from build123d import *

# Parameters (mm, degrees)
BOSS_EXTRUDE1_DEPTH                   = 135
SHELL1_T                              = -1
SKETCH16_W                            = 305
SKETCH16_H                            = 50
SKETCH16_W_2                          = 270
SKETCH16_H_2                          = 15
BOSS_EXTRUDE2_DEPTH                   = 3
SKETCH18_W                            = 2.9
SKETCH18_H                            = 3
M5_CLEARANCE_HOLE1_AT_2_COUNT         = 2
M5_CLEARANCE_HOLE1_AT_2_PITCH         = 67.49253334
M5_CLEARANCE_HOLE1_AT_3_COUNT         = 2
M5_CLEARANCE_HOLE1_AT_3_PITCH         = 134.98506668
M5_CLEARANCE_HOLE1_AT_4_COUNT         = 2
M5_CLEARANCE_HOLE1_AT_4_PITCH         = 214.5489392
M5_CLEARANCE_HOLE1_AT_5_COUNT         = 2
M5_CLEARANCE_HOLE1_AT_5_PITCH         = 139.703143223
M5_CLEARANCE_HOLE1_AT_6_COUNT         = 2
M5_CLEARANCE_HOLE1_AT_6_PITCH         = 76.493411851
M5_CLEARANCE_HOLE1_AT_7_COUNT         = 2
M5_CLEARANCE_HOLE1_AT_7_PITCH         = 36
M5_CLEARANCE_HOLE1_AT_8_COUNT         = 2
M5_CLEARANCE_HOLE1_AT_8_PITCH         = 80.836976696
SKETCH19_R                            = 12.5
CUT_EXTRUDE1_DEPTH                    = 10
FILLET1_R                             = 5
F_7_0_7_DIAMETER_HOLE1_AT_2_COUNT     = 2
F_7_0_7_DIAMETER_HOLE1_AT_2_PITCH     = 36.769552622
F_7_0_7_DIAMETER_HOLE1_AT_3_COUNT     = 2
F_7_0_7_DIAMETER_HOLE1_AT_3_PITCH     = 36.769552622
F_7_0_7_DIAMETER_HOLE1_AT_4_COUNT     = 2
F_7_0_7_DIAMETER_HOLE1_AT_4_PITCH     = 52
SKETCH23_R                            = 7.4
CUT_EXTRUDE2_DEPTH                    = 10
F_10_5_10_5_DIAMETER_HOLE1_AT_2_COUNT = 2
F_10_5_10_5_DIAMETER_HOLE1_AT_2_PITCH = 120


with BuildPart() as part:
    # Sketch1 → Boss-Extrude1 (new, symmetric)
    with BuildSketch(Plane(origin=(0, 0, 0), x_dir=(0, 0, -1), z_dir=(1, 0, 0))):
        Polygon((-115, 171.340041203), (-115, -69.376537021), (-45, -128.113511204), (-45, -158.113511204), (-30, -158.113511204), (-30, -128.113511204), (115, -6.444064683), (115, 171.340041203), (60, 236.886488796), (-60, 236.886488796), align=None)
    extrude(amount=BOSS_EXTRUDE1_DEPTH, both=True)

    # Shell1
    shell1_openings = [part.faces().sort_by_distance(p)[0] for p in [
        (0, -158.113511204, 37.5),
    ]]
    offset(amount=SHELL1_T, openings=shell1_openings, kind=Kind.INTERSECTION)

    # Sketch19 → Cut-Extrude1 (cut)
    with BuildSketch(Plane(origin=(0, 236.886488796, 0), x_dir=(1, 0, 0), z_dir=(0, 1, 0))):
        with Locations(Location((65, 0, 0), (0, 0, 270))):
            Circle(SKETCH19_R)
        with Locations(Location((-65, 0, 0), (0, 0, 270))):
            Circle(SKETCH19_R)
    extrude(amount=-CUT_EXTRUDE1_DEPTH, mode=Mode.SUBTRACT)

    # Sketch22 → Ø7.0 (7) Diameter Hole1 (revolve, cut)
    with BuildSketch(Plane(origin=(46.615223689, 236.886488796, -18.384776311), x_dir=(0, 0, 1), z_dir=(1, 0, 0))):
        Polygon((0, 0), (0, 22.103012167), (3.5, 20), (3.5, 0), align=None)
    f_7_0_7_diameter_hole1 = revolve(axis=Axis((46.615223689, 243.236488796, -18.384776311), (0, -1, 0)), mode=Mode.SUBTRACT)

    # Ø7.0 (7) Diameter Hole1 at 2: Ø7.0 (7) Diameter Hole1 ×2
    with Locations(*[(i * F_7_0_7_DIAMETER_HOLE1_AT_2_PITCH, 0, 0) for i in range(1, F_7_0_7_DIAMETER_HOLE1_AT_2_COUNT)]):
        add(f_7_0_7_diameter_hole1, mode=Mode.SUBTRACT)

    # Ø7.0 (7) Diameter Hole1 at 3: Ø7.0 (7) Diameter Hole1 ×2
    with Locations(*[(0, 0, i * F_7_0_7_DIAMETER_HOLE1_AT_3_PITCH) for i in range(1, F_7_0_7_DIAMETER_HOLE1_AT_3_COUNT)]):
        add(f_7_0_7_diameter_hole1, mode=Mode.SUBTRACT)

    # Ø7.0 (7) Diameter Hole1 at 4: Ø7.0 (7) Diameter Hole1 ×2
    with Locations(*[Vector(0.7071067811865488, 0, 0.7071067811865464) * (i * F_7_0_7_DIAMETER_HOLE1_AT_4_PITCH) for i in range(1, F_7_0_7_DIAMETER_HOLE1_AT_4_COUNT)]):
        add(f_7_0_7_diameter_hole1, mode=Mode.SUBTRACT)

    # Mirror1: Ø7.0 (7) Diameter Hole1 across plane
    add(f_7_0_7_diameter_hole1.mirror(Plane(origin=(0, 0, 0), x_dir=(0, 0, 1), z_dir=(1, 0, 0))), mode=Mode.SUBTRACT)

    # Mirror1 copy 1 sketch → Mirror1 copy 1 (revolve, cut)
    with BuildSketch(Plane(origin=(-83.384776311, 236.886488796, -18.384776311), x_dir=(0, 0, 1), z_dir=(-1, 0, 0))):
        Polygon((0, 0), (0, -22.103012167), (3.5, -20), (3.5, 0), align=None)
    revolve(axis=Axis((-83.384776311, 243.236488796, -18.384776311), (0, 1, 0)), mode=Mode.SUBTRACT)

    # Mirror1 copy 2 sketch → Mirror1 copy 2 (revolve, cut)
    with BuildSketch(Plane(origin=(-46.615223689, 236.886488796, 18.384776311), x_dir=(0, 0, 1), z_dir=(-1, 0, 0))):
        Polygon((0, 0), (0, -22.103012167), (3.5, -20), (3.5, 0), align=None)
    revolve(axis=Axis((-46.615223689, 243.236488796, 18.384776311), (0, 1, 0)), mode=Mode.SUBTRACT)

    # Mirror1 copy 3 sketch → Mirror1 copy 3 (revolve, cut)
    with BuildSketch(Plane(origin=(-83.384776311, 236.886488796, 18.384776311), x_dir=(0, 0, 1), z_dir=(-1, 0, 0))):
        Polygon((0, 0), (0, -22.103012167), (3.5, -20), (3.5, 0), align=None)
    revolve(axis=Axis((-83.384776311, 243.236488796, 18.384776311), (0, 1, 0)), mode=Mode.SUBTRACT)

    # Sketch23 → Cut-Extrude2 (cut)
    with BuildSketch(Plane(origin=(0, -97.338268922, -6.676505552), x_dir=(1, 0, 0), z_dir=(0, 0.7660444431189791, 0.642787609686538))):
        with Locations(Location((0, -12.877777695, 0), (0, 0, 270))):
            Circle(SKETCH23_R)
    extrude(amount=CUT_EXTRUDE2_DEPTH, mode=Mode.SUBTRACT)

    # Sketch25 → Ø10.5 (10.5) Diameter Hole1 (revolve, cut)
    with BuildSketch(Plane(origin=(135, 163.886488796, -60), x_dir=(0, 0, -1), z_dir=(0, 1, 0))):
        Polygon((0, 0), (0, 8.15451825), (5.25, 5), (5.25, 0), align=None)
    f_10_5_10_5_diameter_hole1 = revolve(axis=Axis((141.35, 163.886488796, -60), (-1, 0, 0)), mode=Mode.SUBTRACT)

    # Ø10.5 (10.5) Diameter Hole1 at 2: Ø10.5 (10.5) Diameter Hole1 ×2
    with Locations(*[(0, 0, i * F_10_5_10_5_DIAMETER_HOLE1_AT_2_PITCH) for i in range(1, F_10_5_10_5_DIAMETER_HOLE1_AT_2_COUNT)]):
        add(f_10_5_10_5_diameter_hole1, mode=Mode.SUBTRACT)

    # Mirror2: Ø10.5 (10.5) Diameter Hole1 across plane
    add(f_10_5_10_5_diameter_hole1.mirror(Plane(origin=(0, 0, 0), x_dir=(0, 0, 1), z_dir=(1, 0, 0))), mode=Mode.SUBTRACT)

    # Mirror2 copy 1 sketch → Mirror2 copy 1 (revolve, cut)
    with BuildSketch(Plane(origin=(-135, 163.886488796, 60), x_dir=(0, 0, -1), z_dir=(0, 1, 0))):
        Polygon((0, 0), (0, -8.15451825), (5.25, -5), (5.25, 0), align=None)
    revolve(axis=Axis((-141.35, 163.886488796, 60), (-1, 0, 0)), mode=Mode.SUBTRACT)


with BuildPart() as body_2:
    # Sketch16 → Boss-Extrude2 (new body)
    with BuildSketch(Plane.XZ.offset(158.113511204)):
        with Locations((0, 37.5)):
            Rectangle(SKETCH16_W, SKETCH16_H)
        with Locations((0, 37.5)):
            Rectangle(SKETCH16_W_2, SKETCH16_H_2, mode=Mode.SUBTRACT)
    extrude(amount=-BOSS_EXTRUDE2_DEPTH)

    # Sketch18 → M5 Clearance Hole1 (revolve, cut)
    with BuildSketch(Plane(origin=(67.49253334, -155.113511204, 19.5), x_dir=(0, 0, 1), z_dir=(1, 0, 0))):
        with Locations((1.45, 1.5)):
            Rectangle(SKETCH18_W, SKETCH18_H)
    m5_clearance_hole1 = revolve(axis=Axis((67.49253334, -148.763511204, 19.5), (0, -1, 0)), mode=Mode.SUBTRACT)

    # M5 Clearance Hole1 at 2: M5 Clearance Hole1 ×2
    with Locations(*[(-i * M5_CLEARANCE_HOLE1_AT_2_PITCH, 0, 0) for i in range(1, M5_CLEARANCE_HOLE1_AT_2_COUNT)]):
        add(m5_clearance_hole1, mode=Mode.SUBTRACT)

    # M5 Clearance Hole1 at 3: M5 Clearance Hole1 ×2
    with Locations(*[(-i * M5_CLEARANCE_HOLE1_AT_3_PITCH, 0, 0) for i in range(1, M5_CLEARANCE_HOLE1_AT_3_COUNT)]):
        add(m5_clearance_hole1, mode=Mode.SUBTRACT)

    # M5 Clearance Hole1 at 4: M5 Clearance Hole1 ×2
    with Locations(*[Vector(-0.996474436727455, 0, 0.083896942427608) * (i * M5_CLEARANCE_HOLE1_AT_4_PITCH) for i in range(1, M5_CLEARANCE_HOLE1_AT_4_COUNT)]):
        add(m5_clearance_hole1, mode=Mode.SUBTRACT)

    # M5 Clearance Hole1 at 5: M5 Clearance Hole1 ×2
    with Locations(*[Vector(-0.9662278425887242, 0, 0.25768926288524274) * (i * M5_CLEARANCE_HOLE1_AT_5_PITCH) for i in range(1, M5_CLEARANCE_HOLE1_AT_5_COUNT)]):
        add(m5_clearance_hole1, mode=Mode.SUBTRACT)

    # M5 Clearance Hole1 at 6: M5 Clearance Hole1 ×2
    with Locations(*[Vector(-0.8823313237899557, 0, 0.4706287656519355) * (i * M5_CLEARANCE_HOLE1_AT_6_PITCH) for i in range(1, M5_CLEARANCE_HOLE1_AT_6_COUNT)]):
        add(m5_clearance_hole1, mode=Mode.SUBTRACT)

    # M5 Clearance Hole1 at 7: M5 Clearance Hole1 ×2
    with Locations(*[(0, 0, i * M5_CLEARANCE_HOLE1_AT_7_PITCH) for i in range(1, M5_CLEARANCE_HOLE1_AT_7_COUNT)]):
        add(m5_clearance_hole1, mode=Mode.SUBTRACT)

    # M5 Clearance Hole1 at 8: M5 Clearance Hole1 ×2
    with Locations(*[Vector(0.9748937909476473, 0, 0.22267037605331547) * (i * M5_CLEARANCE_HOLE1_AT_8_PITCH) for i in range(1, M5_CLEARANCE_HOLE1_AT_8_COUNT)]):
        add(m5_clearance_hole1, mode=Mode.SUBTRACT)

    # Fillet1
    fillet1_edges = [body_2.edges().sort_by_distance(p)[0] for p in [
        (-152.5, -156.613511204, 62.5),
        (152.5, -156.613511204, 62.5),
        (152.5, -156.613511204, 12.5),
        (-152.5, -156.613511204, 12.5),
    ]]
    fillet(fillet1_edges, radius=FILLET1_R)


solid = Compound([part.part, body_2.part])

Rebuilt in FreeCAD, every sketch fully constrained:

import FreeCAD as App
import Part
import Sketcher

V = App.Vector
Q = App.Units.Quantity


def edges_at(feature, points):
    """Names of the edges that pass closest to the given points."""
    edges = feature.Shape.Edges
    near = lambda p: min(range(len(edges)), key=lambda i: edges[i].distToShape(Part.Vertex(*p))[0])
    return sorted({f"Edge{near(p) + 1}" for p in points})


def faces_at(feature, points):
    """Names of the faces that lie closest to the given points."""
    faces = feature.Shape.Faces
    near = lambda p: min(range(len(faces)), key=lambda i: faces[i].distToShape(Part.Vertex(*p))[0])
    return sorted({f"Face{near(p) + 1}" for p in points})


def add_polygon(sketch, points):
    """Adds a closed chain of lines whose ends are joined by coincident constraints."""
    first, n = sketch.GeometryCount, len(points)
    for a, b in zip(points, points[1:] + points[:1]):
        sketch.addGeometry(Part.LineSegment(App.Vector(*a, 0), App.Vector(*b, 0)), False)
    for i in range(n):
        sketch.addConstraint(Sketcher.Constraint("Coincident", first + i, 2, first + (i + 1) % n, 1))

doc = App.newDocument("Part")
params = doc.addObject("Spreadsheet::Sheet", "Params")
for row, (alias, value) in enumerate([
    ("sketch1_width", "30 mm"),
    ("sketch1_height", "15 mm"),
    ("sketch1_height2", "120 mm"),
    ("pad1_length", "270 mm"),
    ("thickness_wall", "1 mm"),
    ("sketch2_diameter", "25 mm"),
    ("pocket1_length", "10 mm"),
    ("sketch3_width", "20 mm"),
    ("sketch3_height", "3.5 mm"),
    ("groove_angle", "360 deg"),
    ("linearpattern_pitch", "36.769553 mm"),
    ("linearpattern2_pitch", "36.769553 mm"),
    ("linearpattern3_pitch", "52 mm"),
    ("sketch4_width", "20 mm"),
    ("sketch4_height", "3.5 mm"),
    ("groove2_angle", "360 deg"),
    ("sketch5_width", "20 mm"),
    ("sketch5_height", "3.5 mm"),
    ("groove3_angle", "360 deg"),
    ("sketch6_width", "20 mm"),
    ("sketch6_height", "3.5 mm"),
    ("groove4_angle", "360 deg"),
    ("sketch7_diameter", "14.8 mm"),
    ("pocket2_length", "10 mm"),
    ("sketch8_width", "5 mm"),
    ("sketch8_height", "5.25 mm"),
    ("groove5_angle", "360 deg"),
    ("linearpattern4_pitch", "120 mm"),
    ("sketch9_width", "5 mm"),
    ("sketch9_height", "5.25 mm"),
    ("groove6_angle", "360 deg"),
    ("sketch10_width", "305 mm"),
    ("sketch10_width2", "270 mm"),
    ("sketch10_height", "50 mm"),
    ("sketch10_height2", "15 mm"),
    ("pad2_length", "3 mm"),
    ("sketch11_width", "3 mm"),
    ("sketch11_height", "2.9 mm"),
    ("groove7_angle", "360 deg"),
    ("linearpattern5_pitch", "67.492533 mm"),
    ("linearpattern6_pitch", "134.985067 mm"),
    ("linearpattern7_pitch", "214.548939 mm"),
    ("linearpattern8_pitch", "139.703143 mm"),
    ("linearpattern9_pitch", "76.493412 mm"),
    ("linearpattern10_pitch", "36 mm"),
    ("linearpattern11_pitch", "80.836977 mm"),
    ("fillet_radius", "5 mm"),
], start=1):
    params.set(f"A{row}", alias)
    params.set(f"B{row}", "=" + value)
    params.setAlias(f"B{row}", alias)

body = doc.addObject("PartDesign::Body", "Body")

# Sketch on YZ plane
sketch1 = body.newObject("Sketcher::SketchObject", "Sketch")
sketch1.AttachmentSupport = (doc.getObject("YZ_Plane"), [""])
sketch1.MapMode = "FlatFace"
add_polygon(sketch1, [(171.340041, 115), (-69.376537, 115), (-128.113511, 45), (-158.113511, 45), (-158.113511, 30), (-128.113511, 30), (-6.444065, -115), (171.340041, -115), (236.886489, -60), (236.886489, 60)])  # lines 0-9
sketch1.addConstraint(Sketcher.Constraint("Horizontal", 0))
sketch1.addConstraint(Sketcher.Constraint("Horizontal", 2))
sketch1.addConstraint(Sketcher.Constraint("Vertical", 3))
sketch1.addConstraint(Sketcher.Constraint("Horizontal", 4))
sketch1.addConstraint(Sketcher.Constraint("Horizontal", 6))
sketch1.addConstraint(Sketcher.Constraint("Vertical", 8))
sketch1.addConstraint(Sketcher.Constraint("Symmetric", 6, 2, 9, 2, -1))
sketch1.addConstraint(Sketcher.Constraint("Perpendicular", 5, 7))
sketch1.addConstraint(Sketcher.Constraint("Perpendicular", 1, 9))
sketch1.addConstraint(Sketcher.Constraint("Vertical", 1, 2, 4, 2))
sketch1.addConstraint(Sketcher.Constraint("Equal", 7, 9))
sketch1.addConstraint(Sketcher.Constraint("DistanceX", 2, 2, 2, 1, Q("30 mm")))
sketch1.addConstraint(Sketcher.Constraint("DistanceY", 3, 2, 3, 1, Q("15 mm")))
sketch1.addConstraint(Sketcher.Constraint("DistanceY", 8, 1, 8, 2, Q("120 mm")))
sketch1.addConstraint(Sketcher.Constraint("Angle", 1, Q("-130 deg")))
sketch1.addConstraint(Sketcher.Constraint("DistanceY", -1, 1, 0, 2, Q("115 mm")))
sketch1.addConstraint(Sketcher.Constraint("DistanceY", -1, 1, 1, 2, Q("45 mm")))
sketch1.addConstraint(Sketcher.Constraint("DistanceX", 4, 2, 7, 2, Q("365 mm")))
sketch1.addConstraint(Sketcher.Constraint("DistanceX", 1, 2, -1, 1, Q("128.113511 mm")))
sketch1.setExpression("Constraints[21]", "Params.sketch1_width")
sketch1.setExpression("Constraints[22]", "Params.sketch1_height")
sketch1.setExpression("Constraints[23]", "Params.sketch1_height2")
pad1 = body.newObject("PartDesign::Pad", "Pad")
pad1.Profile = sketch1
pad1.setExpression("Length", "Params.pad1_length")
pad1.Midplane = True
doc.recompute()

thickness = body.newObject("PartDesign::Thickness", "Thickness")
thickness.Base = (pad1, faces_at(pad1, [(0, -158.114, 37.5)]))
thickness.setExpression("Value", "Params.thickness_wall")
thickness.Reversed = True
thickness.Join = "Intersection"

# Sketch on XZ plane
sketch2 = body.newObject("Sketcher::SketchObject", "Sketch001")
sketch2.AttachmentSupport = (doc.getObject("XZ_Plane"), [""])
sketch2.MapMode = "FlatFace"
sketch2.AttachmentOffset = App.Placement(V(0, 0, -236.886489), App.Rotation())
sketch2.addGeometry(Part.Circle(V(65, 0, 0), V(0, 0, 1), 12.5), False)
sketch2.addGeometry(Part.Circle(V(-65, 0, 0), V(0, 0, 1), 12.5), False)
sketch2.addConstraint(Sketcher.Constraint("Equal", 0, 1))
sketch2.addConstraint(Sketcher.Constraint("Symmetric", 0, 3, 1, 3, -1, 1))
sketch2.addConstraint(Sketcher.Constraint("PointOnObject", 0, 3, -1))
sketch2.addConstraint(Sketcher.Constraint("Diameter", 0, Q("25 mm")))
sketch2.addConstraint(Sketcher.Constraint("DistanceX", -1, 1, 0, 3, Q("65 mm")))
sketch2.setExpression("Constraints[3]", "Params.sketch2_diameter")
pocket1 = body.newObject("PartDesign::Pocket", "Pocket")
pocket1.Profile = sketch2
pocket1.setExpression("Length", "Params.pocket1_length")
pocket1.Reversed = True

# Sketch on YZ plane
sketch3 = body.newObject("Sketcher::SketchObject", "Sketch002")
sketch3.AttachmentSupport = (doc.getObject("YZ_Plane"), [""])
sketch3.MapMode = "FlatFace"
sketch3.AttachmentOffset = App.Placement(V(0, 0, 46.615224), App.Rotation())
add_polygon(sketch3, [(214.783477, -18.384776), (236.886489, -18.384776), (236.886489, -14.884776), (216.886489, -14.884776)])  # lines 0-3
sketch3.addGeometry(Part.LineSegment(V(236.886489, -18.384776, 0), V(214.783477, -18.384776, 0)), True)  # axis
sketch3.addConstraint(Sketcher.Constraint("Horizontal", 0))
sketch3.addConstraint(Sketcher.Constraint("Vertical", 1))
sketch3.addConstraint(Sketcher.Constraint("Horizontal", 2))
sketch3.addConstraint(Sketcher.Constraint("Horizontal", 4))
sketch3.addConstraint(Sketcher.Constraint("Coincident", 4, 1, 0, 2))
sketch3.addConstraint(Sketcher.Constraint("Equal", 0, 4))
sketch3.addConstraint(Sketcher.Constraint("DistanceX", 2, 2, 2, 1, Q("20 mm")))
sketch3.addConstraint(Sketcher.Constraint("Angle", 3, Q("-121 deg")))
sketch3.addConstraint(Sketcher.Constraint("DistanceY", 1, 1, 1, 2, Q("3.5 mm")))
sketch3.addConstraint(Sketcher.Constraint("DistanceX", -1, 1, 0, 2, Q("236.886489 mm")))
sketch3.addConstraint(Sketcher.Constraint("DistanceY", 0, 2, -1, 1, Q("18.384776 mm")))
sketch3.setExpression("Constraints[10]", "Params.sketch3_width")
sketch3.setExpression("Constraints[12]", "Params.sketch3_height")
groove = body.newObject("PartDesign::Groove", "Groove")
groove.Profile = sketch3
groove.ReferenceAxis = (sketch3, ["Axis0"])
groove.setExpression("Angle", "Params.groove_angle")
doc.recompute()

linearpattern = body.newObject("PartDesign::LinearPattern", "LinearPattern")
linearpattern.Originals = [groove]
linearpattern.Direction = (doc.getObject("X_Axis"), [""])
linearpattern.Mode = "offset"
linearpattern.setExpression("Offset", "Params.linearpattern_pitch")
linearpattern.Occurrences = 2
body.Tip = linearpattern
doc.recompute()

linearpattern2 = body.newObject("PartDesign::LinearPattern", "LinearPattern001")
linearpattern2.Originals = [groove]
linearpattern2.Direction = (doc.getObject("Z_Axis"), [""])
linearpattern2.Mode = "offset"
linearpattern2.setExpression("Offset", "Params.linearpattern2_pitch")
linearpattern2.Occurrences = 2
body.Tip = linearpattern2
doc.recompute()

datumline = body.newObject("PartDesign::Line", "DatumLine")
datumline.Placement = App.Placement(V(0, 0, 0), App.Rotation(V(0, 0, 1), V(0.707106781, 0, 0.707106781)))
linearpattern3 = body.newObject("PartDesign::LinearPattern", "LinearPattern002")
linearpattern3.Originals = [groove]
linearpattern3.Direction = (datumline, [""])
linearpattern3.Mode = "offset"
linearpattern3.setExpression("Offset", "Params.linearpattern3_pitch")
linearpattern3.Occurrences = 2
body.Tip = linearpattern3
doc.recompute()

mirrored = body.newObject("PartDesign::Mirrored", "Mirrored")
mirrored.Originals = [groove]
mirrored.MirrorPlane = (doc.getObject("YZ_Plane"), [""])
body.Tip = mirrored

# Sketch on YZ plane
sketch4 = body.newObject("Sketcher::SketchObject", "Sketch003")
sketch4.AttachmentSupport = (doc.getObject("YZ_Plane"), [""])
sketch4.MapMode = "FlatFace"
sketch4.AttachmentOffset = App.Placement(V(0, 0, -83.384776), App.Rotation())
add_polygon(sketch4, [(236.886489, -18.384776), (214.783477, -18.384776), (216.886489, -14.884776), (236.886489, -14.884776)])  # lines 0-3
sketch4.addGeometry(Part.LineSegment(V(214.783477, -18.384776, 0), V(236.886489, -18.384776, 0)), True)  # axis
sketch4.addConstraint(Sketcher.Constraint("Horizontal", 0))
sketch4.addConstraint(Sketcher.Constraint("Horizontal", 2))
sketch4.addConstraint(Sketcher.Constraint("Vertical", 3))
sketch4.addConstraint(Sketcher.Constraint("Horizontal", 4))
sketch4.addConstraint(Sketcher.Constraint("Coincident", 4, 1, 0, 2))
sketch4.addConstraint(Sketcher.Constraint("Vertical", 2, 2, 4, 2))
sketch4.addConstraint(Sketcher.Constraint("DistanceX", 2, 1, 2, 2, Q("20 mm")))
sketch4.addConstraint(Sketcher.Constraint("Angle", 1, Q("59 deg")))
sketch4.addConstraint(Sketcher.Constraint("DistanceY", 3, 2, 3, 1, Q("3.5 mm")))
sketch4.addConstraint(Sketcher.Constraint("DistanceX", -1, 1, 1, 2, Q("216.886489 mm")))
sketch4.addConstraint(Sketcher.Constraint("DistanceY", 0, 2, -1, 1, Q("18.384776 mm")))
sketch4.setExpression("Constraints[10]", "Params.sketch4_width")
sketch4.setExpression("Constraints[12]", "Params.sketch4_height")
groove2 = body.newObject("PartDesign::Groove", "Groove001")
groove2.Profile = sketch4
groove2.ReferenceAxis = (sketch4, ["Axis0"])
groove2.setExpression("Angle", "Params.groove2_angle")

# Sketch on YZ plane
sketch5 = body.newObject("Sketcher::SketchObject", "Sketch004")
sketch5.AttachmentSupport = (doc.getObject("YZ_Plane"), [""])
sketch5.MapMode = "FlatFace"
sketch5.AttachmentOffset = App.Placement(V(0, 0, -46.615224), App.Rotation())
add_polygon(sketch5, [(236.886489, 18.384776), (214.783477, 18.384776), (216.886489, 21.884776), (236.886489, 21.884776)])  # lines 0-3
sketch5.addGeometry(Part.LineSegment(V(214.783477, 18.384776, 0), V(236.886489, 18.384776, 0)), True)  # axis
sketch5.addConstraint(Sketcher.Constraint("Horizontal", 0))
sketch5.addConstraint(Sketcher.Constraint("Horizontal", 2))
sketch5.addConstraint(Sketcher.Constraint("Vertical", 3))
sketch5.addConstraint(Sketcher.Constraint("Horizontal", 4))
sketch5.addConstraint(Sketcher.Constraint("Coincident", 4, 1, 0, 2))
sketch5.addConstraint(Sketcher.Constraint("Vertical", 2, 2, 4, 2))
sketch5.addConstraint(Sketcher.Constraint("DistanceX", 2, 1, 2, 2, Q("20 mm")))
sketch5.addConstraint(Sketcher.Constraint("Angle", 1, Q("59 deg")))
sketch5.addConstraint(Sketcher.Constraint("DistanceY", 3, 2, 3, 1, Q("3.5 mm")))
sketch5.addConstraint(Sketcher.Constraint("DistanceX", -1, 1, 1, 2, Q("216.886489 mm")))
sketch5.addConstraint(Sketcher.Constraint("DistanceY", -1, 1, 0, 2, Q("18.384776 mm")))
sketch5.setExpression("Constraints[10]", "Params.sketch5_width")
sketch5.setExpression("Constraints[12]", "Params.sketch5_height")
groove3 = body.newObject("PartDesign::Groove", "Groove002")
groove3.Profile = sketch5
groove3.ReferenceAxis = (sketch5, ["Axis0"])
groove3.setExpression("Angle", "Params.groove3_angle")

# Sketch on YZ plane
sketch6 = body.newObject("Sketcher::SketchObject", "Sketch005")
sketch6.AttachmentSupport = (doc.getObject("YZ_Plane"), [""])
sketch6.MapMode = "FlatFace"
sketch6.AttachmentOffset = App.Placement(V(0, 0, -83.384776), App.Rotation())
add_polygon(sketch6, [(236.886489, 18.384776), (214.783477, 18.384776), (216.886489, 21.884776), (236.886489, 21.884776)])  # lines 0-3
sketch6.addGeometry(Part.LineSegment(V(214.783477, 18.384776, 0), V(236.886489, 18.384776, 0)), True)  # axis
sketch6.addConstraint(Sketcher.Constraint("Horizontal", 0))
sketch6.addConstraint(Sketcher.Constraint("Horizontal", 2))
sketch6.addConstraint(Sketcher.Constraint("Vertical", 3))
sketch6.addConstraint(Sketcher.Constraint("Horizontal", 4))
sketch6.addConstraint(Sketcher.Constraint("Coincident", 4, 1, 0, 2))
sketch6.addConstraint(Sketcher.Constraint("Vertical", 2, 2, 4, 2))
sketch6.addConstraint(Sketcher.Constraint("DistanceX", 2, 1, 2, 2, Q("20 mm")))
sketch6.addConstraint(Sketcher.Constraint("Angle", 1, Q("59 deg")))
sketch6.addConstraint(Sketcher.Constraint("DistanceY", 3, 2, 3, 1, Q("3.5 mm")))
sketch6.addConstraint(Sketcher.Constraint("DistanceX", -1, 1, 1, 2, Q("216.886489 mm")))
sketch6.addConstraint(Sketcher.Constraint("DistanceY", -1, 1, 0, 2, Q("18.384776 mm")))
sketch6.setExpression("Constraints[10]", "Params.sketch6_width")
sketch6.setExpression("Constraints[12]", "Params.sketch6_height")
groove4 = body.newObject("PartDesign::Groove", "Groove003")
groove4.Profile = sketch6
groove4.ReferenceAxis = (sketch6, ["Axis0"])
groove4.setExpression("Angle", "Params.groove4_angle")

# Sketch on an angled plane
sketch7 = body.newObject("Sketcher::SketchObject", "Sketch006")
sketch7.Placement = App.Placement(V(0, -97.338269, -6.676506), App.Rotation(V(1, 0, 0), V(0, 0.64278761, -0.766044443), V(0, 0.766044443, 0.64278761), "ZXY"))
sketch7.addGeometry(Part.Circle(V(0, -12.877778, 0), V(0, 0, 1), 7.4), False)
sketch7.addConstraint(Sketcher.Constraint("PointOnObject", 0, 3, -2))
sketch7.addConstraint(Sketcher.Constraint("Diameter", 0, Q("14.8 mm")))
sketch7.addConstraint(Sketcher.Constraint("DistanceY", 0, 3, -1, 1, Q("12.877778 mm")))
sketch7.setExpression("Constraints[1]", "Params.sketch7_diameter")
pocket2 = body.newObject("PartDesign::Pocket", "Pocket001")
pocket2.Profile = sketch7
pocket2.setExpression("Length", "Params.pocket2_length")
pocket2.Reversed = True

# Sketch on XZ plane
sketch8 = body.newObject("Sketcher::SketchObject", "Sketch007")
sketch8.AttachmentSupport = (doc.getObject("XZ_Plane"), [""])
sketch8.MapMode = "FlatFace"
sketch8.AttachmentOffset = App.Placement(V(0, 0, -163.886489), App.Rotation())
add_polygon(sketch8, [(126.845482, -60), (135, -60), (135, -65.25), (130, -65.25)])  # lines 0-3
sketch8.addGeometry(Part.LineSegment(V(135, -60, 0), V(126.845482, -60, 0)), True)  # axis
sketch8.addConstraint(Sketcher.Constraint("Horizontal", 0))
sketch8.addConstraint(Sketcher.Constraint("Vertical", 1))
sketch8.addConstraint(Sketcher.Constraint("Horizontal", 2))
sketch8.addConstraint(Sketcher.Constraint("Horizontal", 4))
sketch8.addConstraint(Sketcher.Constraint("Coincident", 4, 1, 0, 2))
sketch8.addConstraint(Sketcher.Constraint("Equal", 0, 4))
sketch8.addConstraint(Sketcher.Constraint("DistanceX", 2, 2, 2, 1, Q("5 mm")))
sketch8.addConstraint(Sketcher.Constraint("Angle", 3, Q("121 deg")))
sketch8.addConstraint(Sketcher.Constraint("DistanceX", -1, 1, 0, 2, Q("135 mm")))
sketch8.addConstraint(Sketcher.Constraint("DistanceY", 0, 2, -1, 1, Q("60 mm")))
sketch8.addConstraint(Sketcher.Constraint("DistanceY", 1, 2, 1, 1, Q("5.25 mm")))
sketch8.setExpression("Constraints[10]", "Params.sketch8_width")
sketch8.setExpression("Constraints[14]", "Params.sketch8_height")
groove5 = body.newObject("PartDesign::Groove", "Groove004")
groove5.Profile = sketch8
groove5.ReferenceAxis = (sketch8, ["Axis0"])
groove5.setExpression("Angle", "Params.groove5_angle")
doc.recompute()

linearpattern4 = body.newObject("PartDesign::LinearPattern", "LinearPattern003")
linearpattern4.Originals = [groove5]
linearpattern4.Direction = (doc.getObject("Z_Axis"), [""])
linearpattern4.Mode = "offset"
linearpattern4.setExpression("Offset", "Params.linearpattern4_pitch")
linearpattern4.Occurrences = 2
body.Tip = linearpattern4
doc.recompute()

mirrored2 = body.newObject("PartDesign::Mirrored", "Mirrored001")
mirrored2.Originals = [groove5]
mirrored2.MirrorPlane = (doc.getObject("YZ_Plane"), [""])
body.Tip = mirrored2

# Sketch on XZ plane
sketch9 = body.newObject("Sketcher::SketchObject", "Sketch008")
sketch9.AttachmentSupport = (doc.getObject("XZ_Plane"), [""])
sketch9.MapMode = "FlatFace"
sketch9.AttachmentOffset = App.Placement(V(0, 0, -163.886489), App.Rotation())
add_polygon(sketch9, [(-135, 60), (-126.845482, 60), (-130, 54.75), (-135, 54.75)])  # lines 0-3
sketch9.addGeometry(Part.LineSegment(V(-126.845482, 60, 0), V(-135, 60, 0)), True)  # axis
sketch9.addConstraint(Sketcher.Constraint("Horizontal", 0))
sketch9.addConstraint(Sketcher.Constraint("Horizontal", 2))
sketch9.addConstraint(Sketcher.Constraint("Vertical", 3))
sketch9.addConstraint(Sketcher.Constraint("Horizontal", 4))
sketch9.addConstraint(Sketcher.Constraint("Coincident", 4, 1, 0, 2))
sketch9.addConstraint(Sketcher.Constraint("Vertical", 2, 2, 4, 2))
sketch9.addConstraint(Sketcher.Constraint("DistanceX", 2, 2, 2, 1, Q("5 mm")))
sketch9.addConstraint(Sketcher.Constraint("Angle", 1, Q("-121 deg")))
sketch9.addConstraint(Sketcher.Constraint("DistanceY", -1, 1, 0, 2, Q("60 mm")))
sketch9.addConstraint(Sketcher.Constraint("DistanceX", 1, 2, -1, 1, Q("130 mm")))
sketch9.addConstraint(Sketcher.Constraint("DistanceY", 3, 1, 3, 2, Q("5.25 mm")))
sketch9.setExpression("Constraints[10]", "Params.sketch9_width")
sketch9.setExpression("Constraints[14]", "Params.sketch9_height")
groove6 = body.newObject("PartDesign::Groove", "Groove005")
groove6.Profile = sketch9
groove6.ReferenceAxis = (sketch9, ["Axis0"])
groove6.setExpression("Angle", "Params.groove6_angle")
body2 = doc.addObject("PartDesign::Body", "Body001")

# Sketch on XZ plane
sketch10 = body2.newObject("Sketcher::SketchObject", "Sketch009")
sketch10.AttachmentSupport = (doc.getObject("XZ_Plane001"), [""])
sketch10.MapMode = "FlatFace"
sketch10.AttachmentOffset = App.Placement(V(0, 0, 158.113511), App.Rotation())
add_polygon(sketch10, [(-152.5, 62.5), (-152.5, 12.5), (152.5, 12.5), (152.5, 62.5)])  # lines 0-3
add_polygon(sketch10, [(135, 30), (-135, 30), (-135, 45), (135, 45)])  # lines 4-7
sketch10.addConstraint(Sketcher.Constraint("Vertical", 0))
sketch10.addConstraint(Sketcher.Constraint("Horizontal", 1))
sketch10.addConstraint(Sketcher.Constraint("Vertical", 2))
sketch10.addConstraint(Sketcher.Constraint("Horizontal", 3))
sketch10.addConstraint(Sketcher.Constraint("Horizontal", 4))
sketch10.addConstraint(Sketcher.Constraint("Vertical", 5))
sketch10.addConstraint(Sketcher.Constraint("Horizontal", 6))
sketch10.addConstraint(Sketcher.Constraint("Vertical", 7))
sketch10.addConstraint(Sketcher.Constraint("DistanceX", 1, 1, 1, 2, Q("305 mm")))
sketch10.addConstraint(Sketcher.Constraint("DistanceX", 4, 2, 4, 1, Q("270 mm")))
sketch10.addConstraint(Sketcher.Constraint("DistanceY", 0, 2, 0, 1, Q("50 mm")))
sketch10.addConstraint(Sketcher.Constraint("DistanceY", 5, 1, 5, 2, Q("15 mm")))
sketch10.addConstraint(Sketcher.Constraint("DistanceX", 4, 2, -1, 1, Q("135 mm")))
sketch10.addConstraint(Sketcher.Constraint("DistanceY", -1, 1, 4, 2, Q("30 mm")))
sketch10.addConstraint(Sketcher.Constraint("DistanceX", 0, 2, -1, 1, Q("152.5 mm")))
sketch10.addConstraint(Sketcher.Constraint("DistanceY", -1, 1, 0, 2, Q("12.5 mm")))
sketch10.setExpression("Constraints[16]", "Params.sketch10_width")
sketch10.setExpression("Constraints[17]", "Params.sketch10_width2")
sketch10.setExpression("Constraints[18]", "Params.sketch10_height")
sketch10.setExpression("Constraints[19]", "Params.sketch10_height2")
pad2 = body2.newObject("PartDesign::Pad", "Pad001")
pad2.Profile = sketch10
pad2.setExpression("Length", "Params.pad2_length")
pad2.Reversed = True

# Sketch on YZ plane
sketch11 = body2.newObject("Sketcher::SketchObject", "Sketch010")
sketch11.AttachmentSupport = (doc.getObject("YZ_Plane001"), [""])
sketch11.MapMode = "FlatFace"
sketch11.AttachmentOffset = App.Placement(V(0, 0, 67.492533), App.Rotation())
add_polygon(sketch11, [(-158.113511, 19.5), (-155.113511, 19.5), (-155.113511, 22.4), (-158.113511, 22.4)])  # lines 0-3
sketch11.addGeometry(Part.LineSegment(V(-155.113511, 19.5, 0), V(-158.113511, 19.5, 0)), True)  # axis
sketch11.addConstraint(Sketcher.Constraint("Horizontal", 0))
sketch11.addConstraint(Sketcher.Constraint("Vertical", 1))
sketch11.addConstraint(Sketcher.Constraint("Horizontal", 2))
sketch11.addConstraint(Sketcher.Constraint("Vertical", 3))
sketch11.addConstraint(Sketcher.Constraint("Horizontal", 4))
sketch11.addConstraint(Sketcher.Constraint("Coincident", 4, 1, 0, 2))
sketch11.addConstraint(Sketcher.Constraint("Vertical", 2, 2, 4, 2))
sketch11.addConstraint(Sketcher.Constraint("DistanceX", 0, 1, 0, 2, Q("3 mm")))
sketch11.addConstraint(Sketcher.Constraint("DistanceY", 1, 1, 1, 2, Q("2.9 mm")))
sketch11.addConstraint(Sketcher.Constraint("DistanceY", -1, 1, 0, 2, Q("19.5 mm")))
sketch11.addConstraint(Sketcher.Constraint("DistanceX", 0, 2, -1, 1, Q("155.113511 mm")))
sketch11.setExpression("Constraints[11]", "Params.sketch11_width")
sketch11.setExpression("Constraints[12]", "Params.sketch11_height")
groove7 = body2.newObject("PartDesign::Groove", "Groove006")
groove7.Profile = sketch11
groove7.ReferenceAxis = (sketch11, ["Axis0"])
groove7.setExpression("Angle", "Params.groove7_angle")
doc.recompute()

linearpattern5 = body2.newObject("PartDesign::LinearPattern", "LinearPattern004")
linearpattern5.Originals = [groove7]
linearpattern5.Direction = (doc.getObject("X_Axis001"), [""])
linearpattern5.Mode = "offset"
linearpattern5.setExpression("Offset", "Params.linearpattern5_pitch")
linearpattern5.Occurrences = 2
linearpattern5.Reversed = True
body2.Tip = linearpattern5
doc.recompute()

linearpattern6 = body2.newObject("PartDesign::LinearPattern", "LinearPattern005")
linearpattern6.Originals = [groove7]
linearpattern6.Direction = (doc.getObject("X_Axis001"), [""])
linearpattern6.Mode = "offset"
linearpattern6.setExpression("Offset", "Params.linearpattern6_pitch")
linearpattern6.Occurrences = 2
linearpattern6.Reversed = True
body2.Tip = linearpattern6
doc.recompute()

datumline2 = body2.newObject("PartDesign::Line", "DatumLine001")
datumline2.Placement = App.Placement(V(0, 0, 0), App.Rotation(V(0, 0, 1), V(-0.996474437, 0, 0.083896942)))
linearpattern7 = body2.newObject("PartDesign::LinearPattern", "LinearPattern006")
linearpattern7.Originals = [groove7]
linearpattern7.Direction = (datumline2, [""])
linearpattern7.Mode = "offset"
linearpattern7.setExpression("Offset", "Params.linearpattern7_pitch")
linearpattern7.Occurrences = 2
body2.Tip = linearpattern7
doc.recompute()

datumline3 = body2.newObject("PartDesign::Line", "DatumLine002")
datumline3.Placement = App.Placement(V(0, 0, 0), App.Rotation(V(0, 0, 1), V(-0.966227843, 0, 0.257689263)))
linearpattern8 = body2.newObject("PartDesign::LinearPattern", "LinearPattern007")
linearpattern8.Originals = [groove7]
linearpattern8.Direction = (datumline3, [""])
linearpattern8.Mode = "offset"
linearpattern8.setExpression("Offset", "Params.linearpattern8_pitch")
linearpattern8.Occurrences = 2
body2.Tip = linearpattern8
doc.recompute()

datumline4 = body2.newObject("PartDesign::Line", "DatumLine003")
datumline4.Placement = App.Placement(V(0, 0, 0), App.Rotation(V(0, 0, 1), V(-0.882331324, 0, 0.470628766)))
linearpattern9 = body2.newObject("PartDesign::LinearPattern", "LinearPattern008")
linearpattern9.Originals = [groove7]
linearpattern9.Direction = (datumline4, [""])
linearpattern9.Mode = "offset"
linearpattern9.setExpression("Offset", "Params.linearpattern9_pitch")
linearpattern9.Occurrences = 2
body2.Tip = linearpattern9
doc.recompute()

linearpattern10 = body2.newObject("PartDesign::LinearPattern", "LinearPattern009")
linearpattern10.Originals = [groove7]
linearpattern10.Direction = (doc.getObject("Z_Axis001"), [""])
linearpattern10.Mode = "offset"
linearpattern10.setExpression("Offset", "Params.linearpattern10_pitch")
linearpattern10.Occurrences = 2
body2.Tip = linearpattern10
doc.recompute()

datumline5 = body2.newObject("PartDesign::Line", "DatumLine004")
datumline5.Placement = App.Placement(V(0, 0, 0), App.Rotation(V(0, 0, 1), V(0.974893791, 0, 0.222670376)))
linearpattern11 = body2.newObject("PartDesign::LinearPattern", "LinearPattern010")
linearpattern11.Originals = [groove7]
linearpattern11.Direction = (datumline5, [""])
linearpattern11.Mode = "offset"
linearpattern11.setExpression("Offset", "Params.linearpattern11_pitch")
linearpattern11.Occurrences = 2
body2.Tip = linearpattern11
doc.recompute()

fillet = body2.newObject("PartDesign::Fillet", "Fillet")
fillet.Base = (linearpattern11, edges_at(linearpattern11, [
    (-152.5, -156.614, 62.5),
    (152.5, -156.614, 62.5),
    (152.5, -156.614, 12.5),
    (-152.5, -156.614, 12.5),
]))
fillet.setExpression("Radius", "Params.fillet_radius")

doc.recompute()
